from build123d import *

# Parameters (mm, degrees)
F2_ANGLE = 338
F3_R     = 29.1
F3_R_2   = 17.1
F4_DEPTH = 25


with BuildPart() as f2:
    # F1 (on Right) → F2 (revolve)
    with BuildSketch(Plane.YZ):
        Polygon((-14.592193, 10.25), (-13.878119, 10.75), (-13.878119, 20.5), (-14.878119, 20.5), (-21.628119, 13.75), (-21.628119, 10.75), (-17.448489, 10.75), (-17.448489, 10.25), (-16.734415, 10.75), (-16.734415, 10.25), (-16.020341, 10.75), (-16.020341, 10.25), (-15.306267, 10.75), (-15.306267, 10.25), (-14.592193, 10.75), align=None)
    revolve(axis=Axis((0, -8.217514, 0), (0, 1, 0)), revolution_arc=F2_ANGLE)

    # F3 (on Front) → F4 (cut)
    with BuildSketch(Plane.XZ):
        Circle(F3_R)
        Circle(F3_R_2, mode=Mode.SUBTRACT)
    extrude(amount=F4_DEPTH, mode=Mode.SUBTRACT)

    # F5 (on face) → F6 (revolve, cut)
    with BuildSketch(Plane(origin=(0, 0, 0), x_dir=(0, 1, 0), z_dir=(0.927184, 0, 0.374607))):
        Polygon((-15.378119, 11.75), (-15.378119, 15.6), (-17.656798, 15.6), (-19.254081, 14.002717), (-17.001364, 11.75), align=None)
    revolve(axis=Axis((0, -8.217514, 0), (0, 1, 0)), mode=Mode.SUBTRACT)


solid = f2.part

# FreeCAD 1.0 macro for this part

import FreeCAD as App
import Part
import Sketcher
Q = App.Units.Quantity

doc = App.newDocument("Part")
body = doc.addObject("PartDesign::Body", "Body")

sketch1 = body.newObject("Sketcher::SketchObject", "Sketch")
sketch1.AttachmentSupport = (doc.getObject("YZ_Plane"), [""])
sketch1.MapMode = "FlatFace"
sketch1.addGeometry([
    Part.LineSegment(App.Vector(-14.592193, 10.25, 0), App.Vector(-13.878119, 10.75, 0)),
    Part.LineSegment(App.Vector(-13.878119, 10.75, 0), App.Vector(-13.878119, 20.5, 0)),
    Part.LineSegment(App.Vector(-13.878119, 20.5, 0), App.Vector(-14.878119, 20.5, 0)),
    Part.LineSegment(App.Vector(-14.878119, 20.5, 0), App.Vector(-21.628119, 13.75, 0)),
    Part.LineSegment(App.Vector(-21.628119, 13.75, 0), App.Vector(-21.628119, 10.75, 0)),
    Part.LineSegment(App.Vector(-21.628119, 10.75, 0), App.Vector(-17.448489, 10.75, 0)),
    Part.LineSegment(App.Vector(-17.448489, 10.75, 0), App.Vector(-17.448489, 10.25, 0)),
    Part.LineSegment(App.Vector(-17.448489, 10.25, 0), App.Vector(-16.734415, 10.75, 0)),
    Part.LineSegment(App.Vector(-16.734415, 10.75, 0), App.Vector(-16.734415, 10.25, 0)),
    Part.LineSegment(App.Vector(-16.734415, 10.25, 0), App.Vector(-16.020341, 10.75, 0)),
    Part.LineSegment(App.Vector(-16.020341, 10.75, 0), App.Vector(-16.020341, 10.25, 0)),
    Part.LineSegment(App.Vector(-16.020341, 10.25, 0), App.Vector(-15.306267, 10.75, 0)),
    Part.LineSegment(App.Vector(-15.306267, 10.75, 0), App.Vector(-15.306267, 10.25, 0)),
    Part.LineSegment(App.Vector(-15.306267, 10.25, 0), App.Vector(-14.592193, 10.75, 0)),
    Part.LineSegment(App.Vector(-14.592193, 10.75, 0), App.Vector(-14.592193, 10.25, 0)),
], False)
sketch1.addConstraint([
    Sketcher.Constraint("Coincident", 0, 2, 1, 1),
    Sketcher.Constraint("Coincident", 1, 2, 2, 1),
    Sketcher.Constraint("Coincident", 2, 2, 3, 1),
    Sketcher.Constraint("Coincident", 3, 2, 4, 1),
    Sketcher.Constraint("Coincident", 4, 2, 5, 1),
    Sketcher.Constraint("Coincident", 5, 2, 6, 1),
    Sketcher.Constraint("Coincident", 6, 2, 7, 1),
    Sketcher.Constraint("Coincident", 7, 2, 8, 1),
    Sketcher.Constraint("Coincident", 8, 2, 9, 1),
    Sketcher.Constraint("Coincident", 9, 2, 10, 1),
    Sketcher.Constraint("Coincident", 10, 2, 11, 1),
    Sketcher.Constraint("Coincident", 11, 2, 12, 1),
    Sketcher.Constraint("Coincident", 12, 2, 13, 1),
    Sketcher.Constraint("Coincident", 13, 2, 14, 1),
    Sketcher.Constraint("Coincident", 14, 2, 0, 1),
    Sketcher.Constraint("Vertical", 1),
    Sketcher.Constraint("Horizontal", 2),
    Sketcher.Constraint("Vertical", 4),
    Sketcher.Constraint("Horizontal", 5),
    Sketcher.Constraint("Vertical", 6),
    Sketcher.Constraint("Vertical", 8),
    Sketcher.Constraint("Vertical", 10),
    Sketcher.Constraint("Vertical", 12),
    Sketcher.Constraint("Vertical", 14),
    Sketcher.Constraint("Parallel", 0, 7),
    Sketcher.Constraint("Parallel", 7, 9),
    Sketcher.Constraint("Parallel", 9, 11),
    Sketcher.Constraint("Parallel", 11, 13),
    Sketcher.Constraint("Horizontal", 0, 2, 4, 2),
    Sketcher.Constraint("Horizontal", 5, 2, 7, 2),
    Sketcher.Constraint("Horizontal", 6, 2, 8, 2),
    Sketcher.Constraint("Horizontal", 7, 2, 9, 2),
    Sketcher.Constraint("Horizontal", 8, 2, 10, 2),
    Sketcher.Constraint("Horizontal", 9, 2, 11, 2),
    Sketcher.Constraint("Horizontal", 10, 2, 12, 2),
    Sketcher.Constraint("Horizontal", 11, 2, 13, 2),
    Sketcher.Constraint("Horizontal", 12, 2, 14, 2),
    Sketcher.Constraint("DistanceX", 2, 2, 2, 1, 1.0),
    Sketcher.Constraint("DistanceY", 4, 2, 4, 1, 3.0),
    Sketcher.Constraint("Angle", 0, Q("35 deg")),
    Sketcher.Constraint("Angle", 3, Q("-135 deg")),
    Sketcher.Constraint("DistanceY", 6, 2, 6, 1, 0.5),
    Sketcher.Constraint("DistanceY", 1, 1, 1, 2, 9.75),
    Sketcher.Constraint("DistanceY", -1, 1, 1, 2, 20.5),
    Sketcher.Constraint("DistanceX", 0, 2, -1, 1, 13.878119),
])
revolution = body.newObject("PartDesign::Revolution", "Revolution")
revolution.Profile = sketch1
revolution.ReferenceAxis = (sketch1, ["H_Axis"])
revolution.Angle = 338

sketch2 = body.newObject("Sketcher::SketchObject", "Sketch001")
sketch2.AttachmentSupport = (doc.getObject("XZ_Plane"), [""])
sketch2.MapMode = "FlatFace"
sketch2.addGeometry([
    Part.Circle(App.Vector(0, 0, 0), App.Vector(0, 0, 1), 29.1),
    Part.Circle(App.Vector(0, 0, 0), App.Vector(0, 0, 1), 17.1),
], False)
sketch2.addConstraint([
    Sketcher.Constraint("Coincident", 0, 3, -1, 1),
    Sketcher.Constraint("Coincident", 1, 3, -1, 1),
    Sketcher.Constraint("Diameter", 0, 58.2),
    Sketcher.Constraint("Diameter", 1, 34.2),
])
pocket1 = body.newObject("PartDesign::Pocket", "Pocket")
pocket1.Profile = sketch2
pocket1.Length = 25
pocket1.Reversed = True

sketch3 = body.newObject("Sketcher::SketchObject", "Sketch002")
sketch3.Placement = App.Placement(App.Vector(0, 0, 0), App.Rotation(App.Vector(0, 1, 0), App.Vector(-0.374606892, 0, 0.927183734), App.Vector(0.927183734, 0, 0.374606892), "ZXY"))
sketch3.addGeometry([
    Part.LineSegment(App.Vector(-15.378119, 11.75, 0), App.Vector(-15.378119, 15.6, 0)),
    Part.LineSegment(App.Vector(-15.378119, 15.6, 0), App.Vector(-17.656798, 15.6, 0)),
    Part.LineSegment(App.Vector(-17.656798, 15.6, 0), App.Vector(-19.254081, 14.002717, 0)),
    Part.LineSegment(App.Vector(-19.254081, 14.002717, 0), App.Vector(-17.001364, 11.75, 0)),
    Part.LineSegment(App.Vector(-17.001364, 11.75, 0), App.Vector(-15.378119, 11.75, 0)),
], False)
sketch3.addConstraint([
    Sketcher.Constraint("Coincident", 0, 2, 1, 1),
    Sketcher.Constraint("Coincident", 1, 2, 2, 1),
    Sketcher.Constraint("Coincident", 2, 2, 3, 1),
    Sketcher.Constraint("Coincident", 3, 2, 4, 1),
    Sketcher.Constraint("Coincident", 4, 2, 0, 1),
    Sketcher.Constraint("Vertical", 0),
    Sketcher.Constraint("Horizontal", 1),
    Sketcher.Constraint("Horizontal", 4),
    Sketcher.Constraint("Perpendicular", 2, 3),
    Sketcher.Constraint("Angle", 2, Q("-135 deg")),
    Sketcher.Constraint("DistanceY", 0, 1, 0, 2, 3.85),
    Sketcher.Constraint("DistanceY", -1, 1, 0, 2, 15.6),
    Sketcher.Constraint("Distance", 2, 2.258899),
    Sketcher.Constraint("DistanceX", 1, 2, 1, 1, 2.278679),
    Sketcher.Constraint("DistanceX", 0, 2, -1, 1, 15.378119),
])
groove = body.newObject("PartDesign::Groove", "Groove")
groove.Profile = sketch3
groove.ReferenceAxis = (sketch3, ["H_Axis"])
groove.Angle = 360

doc.recompute()
